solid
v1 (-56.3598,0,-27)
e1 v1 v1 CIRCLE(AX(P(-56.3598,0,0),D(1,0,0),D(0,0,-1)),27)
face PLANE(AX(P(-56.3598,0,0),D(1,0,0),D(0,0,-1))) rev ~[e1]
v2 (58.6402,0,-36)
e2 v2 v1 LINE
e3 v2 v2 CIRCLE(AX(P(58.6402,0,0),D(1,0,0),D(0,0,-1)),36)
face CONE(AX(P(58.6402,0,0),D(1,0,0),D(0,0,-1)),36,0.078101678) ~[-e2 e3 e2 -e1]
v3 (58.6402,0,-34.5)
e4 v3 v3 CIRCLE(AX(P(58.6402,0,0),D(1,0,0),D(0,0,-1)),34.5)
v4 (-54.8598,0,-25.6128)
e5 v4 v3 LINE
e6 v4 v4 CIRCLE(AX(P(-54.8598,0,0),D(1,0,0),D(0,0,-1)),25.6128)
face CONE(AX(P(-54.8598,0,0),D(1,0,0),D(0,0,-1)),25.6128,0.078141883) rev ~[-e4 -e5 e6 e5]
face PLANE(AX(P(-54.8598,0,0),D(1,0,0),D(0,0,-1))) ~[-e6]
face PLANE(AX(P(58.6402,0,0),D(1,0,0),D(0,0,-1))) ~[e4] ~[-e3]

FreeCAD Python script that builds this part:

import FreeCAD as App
import Part
import Sketcher


def add_polygon(sketch, points):
    """Adds a closed chain of lines whose ends are joined by coincident constraints."""
    first, n = sketch.GeometryCount, len(points)
    for a, b in zip(points, points[1:] + points[:1]):
        sketch.addGeometry(Part.LineSegment(App.Vector(*a, 0), App.Vector(*b, 0)), False)
    for i in range(n):
        sketch.addConstraint(Sketcher.Constraint("Coincident", first + i, 2, first + (i + 1) % n, 1))

doc = App.newDocument("Part")
body = doc.addObject("PartDesign::Body", "Body")

# Sketch on XZ plane
sketch1 = body.newObject("Sketcher::SketchObject", "Sketch")
sketch1.AttachmentSupport = (doc.getObject("XZ_Plane"), [""])
sketch1.MapMode = "FlatFace"
add_polygon(sketch1, [(-56.3598, -27), (-56.3598, 0), (-54.8598, 0), (-54.8598, -25.6128), (58.6402, -34.5), (58.6402, -36)])  # lines 0-5
sketch1.addConstraint(Sketcher.Constraint("Vertical", 0))
sketch1.addConstraint(Sketcher.Constraint("Horizontal", 1))
sketch1.addConstraint(Sketcher.Constraint("Vertical", 2))
sketch1.addConstraint(Sketcher.Constraint("Vertical", 4))
sketch1.addConstraint(Sketcher.Constraint("PointOnObject", 0, 2, -1))
sketch1.addConstraint(Sketcher.Constraint("DistanceY", 0, 1, 0, 2, 27.0))
sketch1.addConstraint(Sketcher.Constraint("DistanceX", 1, 1, 1, 2, 1.5))
sketch1.addConstraint(Sketcher.Constraint("DistanceY", 4, 2, 4, 1, 1.5))
sketch1.addConstraint(Sketcher.Constraint("DistanceY", 4, 2, -1, 1, 36.0))
sketch1.addConstraint(Sketcher.Constraint("DistanceX", 0, 2, 3, 2, 115.0))
sketch1.addConstraint(Sketcher.Constraint("DistanceY", 2, 2, 2, 1, 25.6128))
sketch1.addConstraint(Sketcher.Constraint("DistanceX", 0, 2, -1, 1, 56.3598))
revolution = body.newObject("PartDesign::Revolution", "Revolution")
revolution.Profile = sketch1
revolution.ReferenceAxis = (sketch1, ["H_Axis"])
revolution.Angle = 360

doc.recompute()
